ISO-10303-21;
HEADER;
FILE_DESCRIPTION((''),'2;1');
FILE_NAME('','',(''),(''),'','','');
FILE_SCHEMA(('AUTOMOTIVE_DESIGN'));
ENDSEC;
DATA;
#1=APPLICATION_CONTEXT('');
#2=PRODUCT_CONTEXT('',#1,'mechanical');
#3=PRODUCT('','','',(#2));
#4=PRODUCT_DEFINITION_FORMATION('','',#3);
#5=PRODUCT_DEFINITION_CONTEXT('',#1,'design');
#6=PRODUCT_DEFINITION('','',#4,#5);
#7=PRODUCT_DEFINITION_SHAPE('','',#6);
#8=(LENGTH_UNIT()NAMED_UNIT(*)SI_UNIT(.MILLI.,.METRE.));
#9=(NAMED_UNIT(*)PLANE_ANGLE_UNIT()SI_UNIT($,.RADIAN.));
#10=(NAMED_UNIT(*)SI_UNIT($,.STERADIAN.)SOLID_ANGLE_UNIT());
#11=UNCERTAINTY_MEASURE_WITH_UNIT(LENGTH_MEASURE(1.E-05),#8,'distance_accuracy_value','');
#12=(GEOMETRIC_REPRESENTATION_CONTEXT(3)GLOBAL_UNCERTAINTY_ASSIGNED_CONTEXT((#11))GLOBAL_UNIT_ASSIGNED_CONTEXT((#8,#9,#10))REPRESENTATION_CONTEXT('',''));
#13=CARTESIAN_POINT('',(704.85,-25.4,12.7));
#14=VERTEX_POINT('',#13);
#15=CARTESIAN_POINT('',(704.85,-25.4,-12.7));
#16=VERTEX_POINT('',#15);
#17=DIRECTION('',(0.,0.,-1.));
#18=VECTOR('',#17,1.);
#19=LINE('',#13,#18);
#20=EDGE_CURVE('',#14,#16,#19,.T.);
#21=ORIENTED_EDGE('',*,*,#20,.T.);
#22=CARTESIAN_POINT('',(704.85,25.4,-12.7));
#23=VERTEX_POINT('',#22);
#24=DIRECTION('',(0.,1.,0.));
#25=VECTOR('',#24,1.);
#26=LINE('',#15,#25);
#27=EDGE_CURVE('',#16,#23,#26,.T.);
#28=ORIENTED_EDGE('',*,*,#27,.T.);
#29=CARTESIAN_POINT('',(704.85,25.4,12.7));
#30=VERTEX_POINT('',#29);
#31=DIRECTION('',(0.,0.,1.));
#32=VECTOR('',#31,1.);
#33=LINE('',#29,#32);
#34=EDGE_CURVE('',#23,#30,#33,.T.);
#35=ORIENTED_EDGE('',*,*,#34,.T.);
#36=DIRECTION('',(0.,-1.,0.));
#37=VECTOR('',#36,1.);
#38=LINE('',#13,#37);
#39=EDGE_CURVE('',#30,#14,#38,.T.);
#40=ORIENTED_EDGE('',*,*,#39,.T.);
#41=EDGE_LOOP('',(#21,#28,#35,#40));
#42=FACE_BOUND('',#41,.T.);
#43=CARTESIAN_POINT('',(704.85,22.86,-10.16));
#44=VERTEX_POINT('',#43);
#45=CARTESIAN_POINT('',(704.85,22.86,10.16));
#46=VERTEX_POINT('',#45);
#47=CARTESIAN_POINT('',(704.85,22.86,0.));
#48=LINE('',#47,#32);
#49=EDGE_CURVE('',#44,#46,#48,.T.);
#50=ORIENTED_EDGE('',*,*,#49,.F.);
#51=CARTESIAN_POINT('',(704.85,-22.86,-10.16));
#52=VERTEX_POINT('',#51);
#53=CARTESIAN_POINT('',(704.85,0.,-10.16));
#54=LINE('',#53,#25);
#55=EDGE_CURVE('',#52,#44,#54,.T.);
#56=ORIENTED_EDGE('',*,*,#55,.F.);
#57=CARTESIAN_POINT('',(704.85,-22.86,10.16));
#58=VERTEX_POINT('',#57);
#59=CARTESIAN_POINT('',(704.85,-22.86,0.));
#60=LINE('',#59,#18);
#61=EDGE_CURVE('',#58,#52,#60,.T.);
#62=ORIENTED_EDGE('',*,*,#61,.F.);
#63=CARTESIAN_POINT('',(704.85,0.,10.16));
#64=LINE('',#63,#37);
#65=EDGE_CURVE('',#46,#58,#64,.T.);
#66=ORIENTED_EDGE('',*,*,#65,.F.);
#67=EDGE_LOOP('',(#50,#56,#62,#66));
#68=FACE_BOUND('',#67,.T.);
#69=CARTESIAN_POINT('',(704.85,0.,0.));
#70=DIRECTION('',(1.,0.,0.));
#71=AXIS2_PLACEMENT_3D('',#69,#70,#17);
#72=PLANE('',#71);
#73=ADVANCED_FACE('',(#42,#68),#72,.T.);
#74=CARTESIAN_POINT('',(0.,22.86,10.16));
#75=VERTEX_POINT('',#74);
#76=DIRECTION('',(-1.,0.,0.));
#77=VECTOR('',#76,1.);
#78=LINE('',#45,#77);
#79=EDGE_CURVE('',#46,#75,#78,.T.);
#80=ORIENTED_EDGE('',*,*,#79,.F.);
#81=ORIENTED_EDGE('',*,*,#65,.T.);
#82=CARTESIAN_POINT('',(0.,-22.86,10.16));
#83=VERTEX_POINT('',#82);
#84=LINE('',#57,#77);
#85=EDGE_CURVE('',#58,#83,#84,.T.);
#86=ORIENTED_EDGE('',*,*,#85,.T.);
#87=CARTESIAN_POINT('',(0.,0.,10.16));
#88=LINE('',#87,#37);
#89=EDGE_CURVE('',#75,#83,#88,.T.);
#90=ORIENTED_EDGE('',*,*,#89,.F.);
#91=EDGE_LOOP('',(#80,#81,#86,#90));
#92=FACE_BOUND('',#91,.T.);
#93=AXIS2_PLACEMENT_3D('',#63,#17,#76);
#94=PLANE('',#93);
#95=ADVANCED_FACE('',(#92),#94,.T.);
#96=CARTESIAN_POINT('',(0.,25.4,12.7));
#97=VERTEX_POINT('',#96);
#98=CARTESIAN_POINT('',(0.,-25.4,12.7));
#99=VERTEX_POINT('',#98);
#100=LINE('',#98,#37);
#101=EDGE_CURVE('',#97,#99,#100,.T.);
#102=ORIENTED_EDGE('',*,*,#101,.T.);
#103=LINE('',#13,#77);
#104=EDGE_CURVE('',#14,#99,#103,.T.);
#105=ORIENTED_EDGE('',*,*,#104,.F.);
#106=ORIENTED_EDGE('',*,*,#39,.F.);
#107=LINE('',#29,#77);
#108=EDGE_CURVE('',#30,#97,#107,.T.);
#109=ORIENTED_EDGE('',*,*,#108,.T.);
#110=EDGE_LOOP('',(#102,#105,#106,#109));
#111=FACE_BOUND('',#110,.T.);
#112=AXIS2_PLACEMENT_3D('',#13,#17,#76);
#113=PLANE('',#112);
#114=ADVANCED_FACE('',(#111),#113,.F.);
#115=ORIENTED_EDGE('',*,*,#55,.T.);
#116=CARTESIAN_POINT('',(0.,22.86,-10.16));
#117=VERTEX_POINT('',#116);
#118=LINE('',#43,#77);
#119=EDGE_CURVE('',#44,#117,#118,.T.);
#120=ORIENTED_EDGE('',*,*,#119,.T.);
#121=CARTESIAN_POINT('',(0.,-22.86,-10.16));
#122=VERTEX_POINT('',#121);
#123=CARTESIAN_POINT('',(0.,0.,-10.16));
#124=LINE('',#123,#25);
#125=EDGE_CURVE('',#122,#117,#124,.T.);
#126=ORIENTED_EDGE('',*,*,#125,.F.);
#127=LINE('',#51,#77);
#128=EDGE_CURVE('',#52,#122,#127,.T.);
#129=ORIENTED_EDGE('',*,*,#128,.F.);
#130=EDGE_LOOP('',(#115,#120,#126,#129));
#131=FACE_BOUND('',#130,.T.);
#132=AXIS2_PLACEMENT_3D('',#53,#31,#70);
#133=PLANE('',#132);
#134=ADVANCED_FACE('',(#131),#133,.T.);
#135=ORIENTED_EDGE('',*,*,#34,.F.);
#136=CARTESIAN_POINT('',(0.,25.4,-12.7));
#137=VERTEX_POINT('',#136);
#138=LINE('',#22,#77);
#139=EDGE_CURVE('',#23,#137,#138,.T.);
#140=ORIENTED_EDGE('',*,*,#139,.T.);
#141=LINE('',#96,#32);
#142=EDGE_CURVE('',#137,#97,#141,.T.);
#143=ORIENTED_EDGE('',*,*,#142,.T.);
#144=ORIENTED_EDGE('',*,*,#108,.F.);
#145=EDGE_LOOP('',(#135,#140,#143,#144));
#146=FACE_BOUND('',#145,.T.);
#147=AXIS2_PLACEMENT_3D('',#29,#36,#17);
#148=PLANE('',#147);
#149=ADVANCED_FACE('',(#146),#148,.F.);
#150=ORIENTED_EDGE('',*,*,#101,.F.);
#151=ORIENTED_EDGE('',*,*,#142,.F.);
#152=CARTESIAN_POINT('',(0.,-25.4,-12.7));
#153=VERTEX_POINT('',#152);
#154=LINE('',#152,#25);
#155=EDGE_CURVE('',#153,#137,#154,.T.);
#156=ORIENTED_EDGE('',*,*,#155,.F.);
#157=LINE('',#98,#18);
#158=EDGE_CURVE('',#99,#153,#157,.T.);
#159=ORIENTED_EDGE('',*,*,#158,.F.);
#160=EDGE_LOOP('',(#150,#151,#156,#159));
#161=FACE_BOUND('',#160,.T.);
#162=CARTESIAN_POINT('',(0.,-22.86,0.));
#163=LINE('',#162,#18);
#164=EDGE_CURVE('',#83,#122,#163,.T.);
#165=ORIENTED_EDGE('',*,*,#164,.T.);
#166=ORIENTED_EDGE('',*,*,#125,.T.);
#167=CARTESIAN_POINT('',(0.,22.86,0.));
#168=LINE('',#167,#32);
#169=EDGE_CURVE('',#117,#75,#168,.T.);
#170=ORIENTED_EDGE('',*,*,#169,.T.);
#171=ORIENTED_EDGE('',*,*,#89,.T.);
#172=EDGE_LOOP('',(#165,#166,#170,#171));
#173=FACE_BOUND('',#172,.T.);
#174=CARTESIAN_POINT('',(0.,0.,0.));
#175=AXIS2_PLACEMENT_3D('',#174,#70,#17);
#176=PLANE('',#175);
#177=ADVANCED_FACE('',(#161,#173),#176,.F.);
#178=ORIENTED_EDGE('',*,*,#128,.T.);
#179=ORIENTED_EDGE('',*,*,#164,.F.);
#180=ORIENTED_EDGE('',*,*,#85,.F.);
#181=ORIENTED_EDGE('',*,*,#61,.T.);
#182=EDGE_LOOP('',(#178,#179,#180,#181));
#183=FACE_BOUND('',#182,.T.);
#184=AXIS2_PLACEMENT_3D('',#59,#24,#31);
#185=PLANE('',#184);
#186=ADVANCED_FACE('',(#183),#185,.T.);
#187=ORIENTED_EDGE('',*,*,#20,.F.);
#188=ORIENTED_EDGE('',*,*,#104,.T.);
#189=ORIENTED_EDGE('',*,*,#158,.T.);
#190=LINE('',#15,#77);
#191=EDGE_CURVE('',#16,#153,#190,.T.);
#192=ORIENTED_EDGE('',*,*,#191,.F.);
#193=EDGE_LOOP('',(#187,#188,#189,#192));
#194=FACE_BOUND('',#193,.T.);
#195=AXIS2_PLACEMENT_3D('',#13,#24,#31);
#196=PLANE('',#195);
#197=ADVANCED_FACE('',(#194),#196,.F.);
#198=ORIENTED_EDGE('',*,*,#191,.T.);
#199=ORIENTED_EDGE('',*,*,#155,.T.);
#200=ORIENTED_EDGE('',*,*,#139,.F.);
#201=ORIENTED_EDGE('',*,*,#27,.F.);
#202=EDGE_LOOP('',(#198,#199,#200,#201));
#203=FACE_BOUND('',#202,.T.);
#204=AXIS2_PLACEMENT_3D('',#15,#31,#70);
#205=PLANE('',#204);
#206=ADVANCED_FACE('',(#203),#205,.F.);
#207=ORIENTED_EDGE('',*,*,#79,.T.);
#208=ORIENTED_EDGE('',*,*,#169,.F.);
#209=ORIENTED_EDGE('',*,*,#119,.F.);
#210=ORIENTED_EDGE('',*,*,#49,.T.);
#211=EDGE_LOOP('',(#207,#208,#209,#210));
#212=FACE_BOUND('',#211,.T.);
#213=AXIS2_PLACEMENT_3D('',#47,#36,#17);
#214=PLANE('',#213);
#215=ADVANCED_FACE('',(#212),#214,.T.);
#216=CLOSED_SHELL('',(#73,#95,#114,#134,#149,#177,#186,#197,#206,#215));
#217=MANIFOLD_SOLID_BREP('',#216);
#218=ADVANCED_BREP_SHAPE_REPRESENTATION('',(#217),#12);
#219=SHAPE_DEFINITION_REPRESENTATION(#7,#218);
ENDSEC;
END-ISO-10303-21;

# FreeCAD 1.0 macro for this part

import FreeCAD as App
import Part
import Sketcher
Q = App.Units.Quantity

doc = App.newDocument("Part")
body = doc.addObject("PartDesign::Body", "Body")

sketch1 = doc.addObject("Sketcher::SketchObject", "Sketch")
body.addObject(sketch1)
sketch1.AttachmentSupport = (doc.YZ_Plane, [""])
sketch1.MapMode = "FlatFace"
sketch1.addGeometry(Part.LineSegment(App.Vector(25.4, 12.7, 0), App.Vector(-25.4, 12.7, 0)), False)
sketch1.addGeometry(Part.LineSegment(App.Vector(-25.4, 12.7, 0), App.Vector(-25.4, -12.7, 0)), False)
sketch1.addGeometry(Part.LineSegment(App.Vector(-25.4, -12.7, 0), App.Vector(25.4, -12.7, 0)), False)
sketch1.addGeometry(Part.LineSegment(App.Vector(25.4, -12.7, 0), App.Vector(25.4, 12.7, 0)), False)
sketch1.addGeometry(Part.LineSegment(App.Vector(-22.86, -10.16, 0), App.Vector(-22.86, 10.16, 0)), False)
sketch1.addGeometry(Part.LineSegment(App.Vector(-22.86, 10.16, 0), App.Vector(22.86, 10.16, 0)), False)
sketch1.addGeometry(Part.LineSegment(App.Vector(22.86, 10.16, 0), App.Vector(22.86, -10.16, 0)), False)
sketch1.addGeometry(Part.LineSegment(App.Vector(22.86, -10.16, 0), App.Vector(-22.86, -10.16, 0)), False)
sketch1.addConstraint(Sketcher.Constraint("Coincident", 0, 2, 1, 1))
sketch1.addConstraint(Sketcher.Constraint("Coincident", 1, 2, 2, 1))
sketch1.addConstraint(Sketcher.Constraint("Coincident", 2, 2, 3, 1))
sketch1.addConstraint(Sketcher.Constraint("Coincident", 3, 2, 0, 1))
sketch1.addConstraint(Sketcher.Constraint("Coincident", 4, 2, 5, 1))
sketch1.addConstraint(Sketcher.Constraint("Coincident", 5, 2, 6, 1))
sketch1.addConstraint(Sketcher.Constraint("Coincident", 6, 2, 7, 1))
sketch1.addConstraint(Sketcher.Constraint("Coincident", 7, 2, 4, 1))
sketch1.addConstraint(Sketcher.Constraint("Horizontal", 0))
sketch1.addConstraint(Sketcher.Constraint("Vertical", 1))
sketch1.addConstraint(Sketcher.Constraint("Horizontal", 2))
sketch1.addConstraint(Sketcher.Constraint("Vertical", 3))
sketch1.addConstraint(Sketcher.Constraint("Vertical", 4))
sketch1.addConstraint(Sketcher.Constraint("Horizontal", 5))
sketch1.addConstraint(Sketcher.Constraint("Vertical", 6))
sketch1.addConstraint(Sketcher.Constraint("Horizontal", 7))
sketch1.addConstraint(Sketcher.Constraint("Symmetric", 0, 2, 2, 2, -1, 1))
sketch1.addConstraint(Sketcher.Constraint("Symmetric", 4, 2, 6, 2, -1, 1))
sketch1.addConstraint(Sketcher.Constraint("DistanceX", 0, 2, 0, 1, Q("2 in")))
sketch1.addConstraint(Sketcher.Constraint("DistanceY", 1, 2, 1, 1, Q("1 in")))
sketch1.addConstraint(Sketcher.Constraint("DistanceX", 5, 1, 5, 2, Q("1.8 in")))
sketch1.addConstraint(Sketcher.Constraint("DistanceY", 4, 1, 4, 2, Q("0.8 in")))
pad1 = doc.addObject("PartDesign::Pad", "Pad")
body.addObject(pad1)
pad1.Profile = sketch1
pad1.Length = Q("27.75 in")

doc.recompute()
